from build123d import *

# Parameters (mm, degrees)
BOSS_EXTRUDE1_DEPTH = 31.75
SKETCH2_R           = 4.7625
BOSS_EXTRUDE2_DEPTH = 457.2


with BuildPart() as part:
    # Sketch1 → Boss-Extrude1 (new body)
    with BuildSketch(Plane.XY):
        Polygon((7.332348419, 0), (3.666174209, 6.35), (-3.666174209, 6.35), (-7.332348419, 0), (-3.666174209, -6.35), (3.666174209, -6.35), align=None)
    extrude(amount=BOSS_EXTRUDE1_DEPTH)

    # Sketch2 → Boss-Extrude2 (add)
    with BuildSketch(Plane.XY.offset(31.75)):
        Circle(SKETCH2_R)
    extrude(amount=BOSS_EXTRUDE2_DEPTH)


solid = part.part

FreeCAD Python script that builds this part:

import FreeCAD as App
import Part
import Sketcher
Q = App.Units.Quantity


def add_polygon(sketch, points):
    """Adds a closed chain of lines whose ends are joined by coincident constraints."""
    first, n = sketch.GeometryCount, len(points)
    for a, b in zip(points, points[1:] + points[:1]):
        sketch.addGeometry(Part.LineSegment(App.Vector(*a, 0), App.Vector(*b, 0)), False)
    for i in range(n):
        sketch.addConstraint(Sketcher.Constraint("Coincident", first + i, 2, first + (i + 1) % n, 1))

doc = App.newDocument("Part")
params = doc.addObject("Spreadsheet::Sheet", "Params")
for row, (alias, value) in enumerate([
    ("pad1_length", "1.25 in"),
    ("sketch2_diameter", "0.375 in"),
    ("pad2_length", "18 in"),
], start=1):
    params.set(f"A{row}", alias)
    params.set(f"B{row}", "=" + value)
    params.setAlias(f"B{row}", alias)

body = doc.addObject("PartDesign::Body", "Body")

# Sketch on XY plane
sketch1 = body.newObject("Sketcher::SketchObject", "Sketch")
sketch1.AttachmentSupport = (doc.getObject("XY_Plane"), [""])
sketch1.MapMode = "FlatFace"
add_polygon(sketch1, [(7.332348, 0), (3.666174, 6.35), (-3.666174, 6.35), (-7.332348, 0), (-3.666174, -6.35), (3.666174, -6.35)])  # lines 0-5
sketch1.addConstraint(Sketcher.Constraint("Horizontal", 1))
sketch1.addConstraint(Sketcher.Constraint("Horizontal", 4))
sketch1.addConstraint(Sketcher.Constraint("Symmetric", 0, 2, 3, 2, -1, 1))
sketch1.addConstraint(Sketcher.Constraint("Symmetric", 2, 2, 5, 2, -1, 1))
sketch1.addConstraint(Sketcher.Constraint("PointOnObject", 2, 2, -1))
sketch1.addConstraint(Sketcher.Constraint("Parallel", 2, 5))
sketch1.addConstraint(Sketcher.Constraint("Vertical", 1, 2, 3, 2))
sketch1.addConstraint(Sketcher.Constraint("Angle", 0, Q("120 deg")))
sketch1.addConstraint(Sketcher.Constraint("DistanceY", 3, 2, 1, 2, Q("0.5 in")))
sketch1.addConstraint(Sketcher.Constraint("DistanceX", 1, 2, 1, 1, 7.332348))
pad1 = body.newObject("PartDesign::Pad", "Pad")
pad1.Profile = sketch1
pad1.setExpression("Length", "Params.pad1_length")

# Sketch on XY plane
sketch2 = body.newObject("Sketcher::SketchObject", "Sketch001")
sketch2.AttachmentSupport = (doc.getObject("XY_Plane"), [""])
sketch2.MapMode = "FlatFace"
sketch2.AttachmentOffset = App.Placement(App.Vector(0, 0, 1.25 * 25.4), App.Rotation())
sketch2.addGeometry(Part.Circle(App.Vector(0, 0, 0), App.Vector(0, 0, 1), 4.7625), False)
sketch2.addConstraint(Sketcher.Constraint("Coincident", 0, 3, -1, 1))
sketch2.addConstraint(Sketcher.Constraint("Diameter", 0, Q("0.375 in")))
sketch2.setExpression("Constraints[1]", "Params.sketch2_diameter")
pad2 = body.newObject("PartDesign::Pad", "Pad001")
pad2.Profile = sketch2
pad2.setExpression("Length", "Params.pad2_length")

doc.recompute()
